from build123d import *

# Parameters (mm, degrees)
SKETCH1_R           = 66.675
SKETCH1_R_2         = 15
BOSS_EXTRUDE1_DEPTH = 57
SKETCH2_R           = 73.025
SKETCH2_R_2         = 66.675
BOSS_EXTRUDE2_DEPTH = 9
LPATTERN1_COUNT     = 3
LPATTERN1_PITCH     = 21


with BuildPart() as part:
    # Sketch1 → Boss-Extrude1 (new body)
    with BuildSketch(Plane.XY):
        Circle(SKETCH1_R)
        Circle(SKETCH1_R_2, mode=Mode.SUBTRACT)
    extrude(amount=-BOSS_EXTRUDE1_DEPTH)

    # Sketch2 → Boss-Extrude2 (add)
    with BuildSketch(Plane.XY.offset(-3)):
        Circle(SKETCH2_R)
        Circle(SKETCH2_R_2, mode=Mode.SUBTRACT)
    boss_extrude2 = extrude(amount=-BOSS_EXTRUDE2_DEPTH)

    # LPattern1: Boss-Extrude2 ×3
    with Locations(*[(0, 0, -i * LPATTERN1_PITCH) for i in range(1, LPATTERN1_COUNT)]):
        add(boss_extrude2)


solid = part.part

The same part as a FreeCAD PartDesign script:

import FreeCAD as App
import Part
import Sketcher
from FreeCAD import Vector
Q = App.Units.Quantity

doc = App.newDocument("Part")
params = doc.addObject("Spreadsheet::Sheet", "Params")
for row, (alias, value) in enumerate([
    ("sketch1_diameter", "30 mm"),
    ("sketch1_diameter2", "133.35 mm"),
    ("pad1_length", "57 mm"),
    ("sketch2_diameter", "146.05 mm"),
    ("sketch2_diameter2", "133.35 mm"),
    ("pad2_length", "9 mm"),
    ("linearpattern_pitch", "21 mm"),
], start=1):
    params.set(f"A{row}", alias)
    params.set(f"B{row}", "=" + value)
    params.setAlias(f"B{row}", alias)

body = doc.addObject("PartDesign::Body", "Body")

# Sketch on XY plane
sketch1 = body.newObject("Sketcher::SketchObject", "Sketch")
sketch1.AttachmentSupport = (doc.getObject("XY_Plane"), [""])
sketch1.MapMode = "FlatFace"
sketch1.addGeometry([
    Part.Circle(Vector(0, 0, 0), Vector(0, 0, 1), 67),
    Part.Circle(Vector(0, 0, 0), Vector(0, 0, 1), 15),
], False)
sketch1.addConstraint([
    Sketcher.Constraint("Coincident", 0, 3, -1, 1),
    Sketcher.Constraint("Coincident", 1, 3, -1, 1),
    Sketcher.Constraint("Diameter", 1, Q("30 mm")),
    Sketcher.Constraint("Diameter", 0, Q("133.35 mm")),
])
sketch1.setExpression("Constraints[2]", "Params.sketch1_diameter")
sketch1.setExpression("Constraints[3]", "Params.sketch1_diameter2")
pad1 = body.newObject("PartDesign::Pad", "Pad")
pad1.Profile = sketch1
pad1.setExpression("Length", "Params.pad1_length")
pad1.Reversed = True

# Sketch on XY plane
sketch2 = body.newObject("Sketcher::SketchObject", "Sketch001")
sketch2.AttachmentSupport = (doc.getObject("XY_Plane"), [""])
sketch2.MapMode = "FlatFace"
sketch2.AttachmentOffset = App.Placement(Vector(0, 0, -3), App.Rotation())
sketch2.addGeometry([
    Part.Circle(Vector(0, 0, 0), Vector(0, 0, 1), 73),
    Part.Circle(Vector(0, 0, 0), Vector(0, 0, 1), 67),
], False)
sketch2.addConstraint([
    Sketcher.Constraint("Coincident", 0, 3, -1, 1),
    Sketcher.Constraint("Coincident", 1, 3, -1, 1),
    Sketcher.Constraint("Diameter", 0, Q("146.05 mm")),
    Sketcher.Constraint("Diameter", 1, Q("133.35 mm")),
])
sketch2.setExpression("Constraints[2]", "Params.sketch2_diameter")
sketch2.setExpression("Constraints[3]", "Params.sketch2_diameter2")
pad2 = body.newObject("PartDesign::Pad", "Pad001")
pad2.Profile = sketch2
pad2.setExpression("Length", "Params.pad2_length")
pad2.Reversed = True
doc.recompute()

linearpattern = body.newObject("PartDesign::LinearPattern", "LinearPattern")
linearpattern.Originals = [pad2]
linearpattern.Direction = (doc.getObject("Z_Axis"), [""])
linearpattern.Mode = "offset"
linearpattern.setExpression("Offset", "Params.linearpattern_pitch")
linearpattern.Occurrences = 3
linearpattern.Reversed = True
body.Tip = linearpattern

doc.recompute()
